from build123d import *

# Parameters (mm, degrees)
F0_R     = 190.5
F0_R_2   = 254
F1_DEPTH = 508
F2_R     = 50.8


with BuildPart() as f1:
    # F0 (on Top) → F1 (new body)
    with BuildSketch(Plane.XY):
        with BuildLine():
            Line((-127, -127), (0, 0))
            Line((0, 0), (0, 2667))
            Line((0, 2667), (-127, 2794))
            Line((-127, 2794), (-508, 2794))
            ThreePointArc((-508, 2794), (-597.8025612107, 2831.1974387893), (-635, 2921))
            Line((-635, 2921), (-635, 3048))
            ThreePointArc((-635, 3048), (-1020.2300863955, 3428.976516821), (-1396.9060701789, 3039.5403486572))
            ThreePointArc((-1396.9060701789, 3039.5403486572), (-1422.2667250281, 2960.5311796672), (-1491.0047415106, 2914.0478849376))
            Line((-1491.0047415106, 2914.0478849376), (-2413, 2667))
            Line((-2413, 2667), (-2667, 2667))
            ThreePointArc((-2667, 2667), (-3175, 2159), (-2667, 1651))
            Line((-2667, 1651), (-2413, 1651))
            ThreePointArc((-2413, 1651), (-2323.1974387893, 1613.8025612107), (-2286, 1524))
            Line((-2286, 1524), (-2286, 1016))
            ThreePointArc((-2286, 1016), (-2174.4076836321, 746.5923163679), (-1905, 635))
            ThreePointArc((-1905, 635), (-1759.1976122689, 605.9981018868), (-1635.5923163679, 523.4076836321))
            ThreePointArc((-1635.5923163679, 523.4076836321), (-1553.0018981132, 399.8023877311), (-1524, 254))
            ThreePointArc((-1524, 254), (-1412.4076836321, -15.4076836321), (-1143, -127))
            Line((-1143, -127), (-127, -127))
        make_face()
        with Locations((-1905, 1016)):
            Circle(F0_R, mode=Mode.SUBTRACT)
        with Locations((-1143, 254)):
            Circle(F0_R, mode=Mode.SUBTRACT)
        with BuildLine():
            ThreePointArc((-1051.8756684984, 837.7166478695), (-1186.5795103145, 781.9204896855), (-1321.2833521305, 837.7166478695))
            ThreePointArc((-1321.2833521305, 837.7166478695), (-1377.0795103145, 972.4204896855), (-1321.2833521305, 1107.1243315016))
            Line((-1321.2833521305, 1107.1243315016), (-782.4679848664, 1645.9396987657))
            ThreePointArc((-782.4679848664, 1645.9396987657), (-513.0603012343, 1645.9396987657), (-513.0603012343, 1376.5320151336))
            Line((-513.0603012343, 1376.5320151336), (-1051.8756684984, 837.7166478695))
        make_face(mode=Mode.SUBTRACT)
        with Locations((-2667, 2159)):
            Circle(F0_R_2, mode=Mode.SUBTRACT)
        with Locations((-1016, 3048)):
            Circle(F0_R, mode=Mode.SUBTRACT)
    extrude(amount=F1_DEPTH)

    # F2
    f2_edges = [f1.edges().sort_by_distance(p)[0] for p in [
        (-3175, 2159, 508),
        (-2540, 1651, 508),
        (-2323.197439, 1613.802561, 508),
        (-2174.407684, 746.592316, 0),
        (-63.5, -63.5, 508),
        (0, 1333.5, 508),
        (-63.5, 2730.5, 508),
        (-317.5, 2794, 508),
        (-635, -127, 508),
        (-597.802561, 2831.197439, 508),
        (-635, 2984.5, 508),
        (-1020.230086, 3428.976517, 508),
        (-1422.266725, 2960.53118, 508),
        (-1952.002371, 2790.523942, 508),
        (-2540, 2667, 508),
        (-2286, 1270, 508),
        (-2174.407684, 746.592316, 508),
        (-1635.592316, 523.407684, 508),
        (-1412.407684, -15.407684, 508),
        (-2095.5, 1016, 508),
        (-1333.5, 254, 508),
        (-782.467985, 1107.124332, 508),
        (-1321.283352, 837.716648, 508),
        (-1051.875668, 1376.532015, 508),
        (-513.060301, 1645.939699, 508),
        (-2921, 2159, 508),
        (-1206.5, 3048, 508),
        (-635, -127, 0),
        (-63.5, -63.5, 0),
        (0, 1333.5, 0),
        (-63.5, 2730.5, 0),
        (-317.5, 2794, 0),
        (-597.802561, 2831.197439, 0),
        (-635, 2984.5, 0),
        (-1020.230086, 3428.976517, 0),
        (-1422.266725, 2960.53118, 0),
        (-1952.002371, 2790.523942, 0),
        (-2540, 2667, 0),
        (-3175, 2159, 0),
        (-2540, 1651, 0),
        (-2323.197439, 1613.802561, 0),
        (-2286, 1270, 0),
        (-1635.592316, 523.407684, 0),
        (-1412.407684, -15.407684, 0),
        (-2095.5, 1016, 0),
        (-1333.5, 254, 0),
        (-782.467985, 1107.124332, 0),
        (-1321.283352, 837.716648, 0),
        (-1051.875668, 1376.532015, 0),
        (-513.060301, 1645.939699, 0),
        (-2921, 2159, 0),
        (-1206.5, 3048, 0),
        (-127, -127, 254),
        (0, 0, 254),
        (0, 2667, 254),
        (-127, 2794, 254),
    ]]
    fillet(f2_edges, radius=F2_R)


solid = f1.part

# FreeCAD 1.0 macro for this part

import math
import FreeCAD as App
import Part
import Sketcher
from FreeCAD import Vector
Q = App.Units.Quantity

doc = App.newDocument("Part")
body = doc.addObject("PartDesign::Body", "Body")

sketch1 = body.newObject("Sketcher::SketchObject", "Sketch")
sketch1.AttachmentSupport = (doc.getObject("XY_Plane"), [""])
sketch1.MapMode = "FlatFace"
sketch1.addGeometry([
    Part.LineSegment(Vector(-127, -127, 0), Vector(0, 0, 0)),
    Part.LineSegment(Vector(0, 0, 0), Vector(0, 2667, 0)),
    Part.LineSegment(Vector(0, 2667, 0), Vector(-127, 2794, 0)),
    Part.LineSegment(Vector(-127, 2794, 0), Vector(-508, 2794, 0)),
    Part.ArcOfCircle(Part.Circle(Vector(-508, 2921, 0), Vector(0, 0, 1), 127), math.radians(180), math.radians(270)),
    Part.LineSegment(Vector(-635, 2921, 0), Vector(-635, 3048, 0)),
    Part.ArcOfCircle(Part.Circle(Vector(-1016, 3048, 0), Vector(0, 0, 1), 381), math.radians(0), math.radians(181.272289)),
    Part.ArcOfCircle(Part.Circle(Vector(-1523.87476, 3036.720465, 0), Vector(0, 0, 1), 127), math.radians(-75), math.radians(1.272289)),
    Part.LineSegment(Vector(-1491.004742, 2914.047885, 0), Vector(-2413, 2667, 0)),
    Part.LineSegment(Vector(-2413, 2667, 0), Vector(-2667, 2667, 0)),
    Part.ArcOfCircle(Part.Circle(Vector(-2667, 2159, 0), Vector(0, 0, 1), 508), math.radians(90), math.radians(270)),
    Part.LineSegment(Vector(-2667, 1651, 0), Vector(-2413, 1651, 0)),
    Part.ArcOfCircle(Part.Circle(Vector(-2413, 1524, 0), Vector(0, 0, 1), 127), math.radians(0), math.radians(90)),
    Part.LineSegment(Vector(-2286, 1524, 0), Vector(-2286, 1016, 0)),
    Part.ArcOfCircle(Part.Circle(Vector(-1905, 1016, 0), Vector(0, 0, 1), 381), math.radians(180), math.radians(270)),
    Part.ArcOfCircle(Part.Circle(Vector(-1905, 254, 0), Vector(0, 0, 1), 381), math.radians(0), math.radians(90)),
    Part.ArcOfCircle(Part.Circle(Vector(-1143, 254, 0), Vector(0, 0, 1), 381), math.radians(180), math.radians(270)),
    Part.LineSegment(Vector(-1143, -127, 0), Vector(-127, -127, 0)),
    Part.Circle(Vector(-1905, 1016, 0), Vector(0, 0, 1), 190.5),
    Part.Circle(Vector(-1143, 254, 0), Vector(0, 0, 1), 190.5),
    Part.LineSegment(Vector(-513.060301, 1376.532015, 0), Vector(-1051.875668, 837.716648, 0)),
    Part.ArcOfCircle(Part.Circle(Vector(-1186.57951, 972.42049, 0), Vector(0, 0, 1), 190.5), math.radians(135), math.radians(315)),
    Part.LineSegment(Vector(-1321.283352, 1107.124332, 0), Vector(-782.467985, 1645.939699, 0)),
    Part.ArcOfCircle(Part.Circle(Vector(-647.764143, 1511.235857, 0), Vector(0, 0, 1), 190.5), math.radians(-45), math.radians(135)),
    Part.Circle(Vector(-2667, 2159, 0), Vector(0, 0, 1), 254),
    Part.Circle(Vector(-1016, 3048, 0), Vector(0, 0, 1), 190.5),
], False)
sketch1.addConstraint([
    Sketcher.Constraint("Coincident", 0, 2, 1, 1),
    Sketcher.Constraint("Coincident", 1, 2, 2, 1),
    Sketcher.Constraint("Coincident", 2, 2, 3, 1),
    Sketcher.Constraint("Tangent", 3, 2, 4, 2),
    Sketcher.Constraint("Tangent", 4, 1, 5, 1),
    Sketcher.Constraint("Tangent", 5, 2, 6, 1),
    Sketcher.Constraint("Tangent", 6, 2, 7, 2),
    Sketcher.Constraint("Tangent", 7, 1, 8, 1),
    Sketcher.Constraint("Coincident", 8, 2, 9, 1),
    Sketcher.Constraint("Tangent", 9, 2, 10, 1),
    Sketcher.Constraint("Tangent", 10, 2, 11, 1),
    Sketcher.Constraint("Tangent", 11, 2, 12, 2),
    Sketcher.Constraint("Tangent", 12, 1, 13, 1),
    Sketcher.Constraint("Tangent", 13, 2, 14, 1),
    Sketcher.Constraint("Tangent", 14, 2, 15, 2),
    Sketcher.Constraint("Tangent", 15, 1, 16, 1),
    Sketcher.Constraint("Tangent", 16, 2, 17, 1),
    Sketcher.Constraint("Coincident", 17, 2, 0, 1),
    Sketcher.Constraint("Tangent", 20, 2, 21, 2),
    Sketcher.Constraint("Tangent", 21, 1, 22, 1),
    Sketcher.Constraint("Tangent", 22, 2, 23, 2),
    Sketcher.Constraint("Tangent", 23, 1, 20, 1),
    Sketcher.Constraint("Vertical", 1),
    Sketcher.Constraint("Horizontal", 3),
    Sketcher.Constraint("Vertical", 5),
    Sketcher.Constraint("Horizontal", 9),
    Sketcher.Constraint("Horizontal", 11),
    Sketcher.Constraint("Vertical", 13),
    Sketcher.Constraint("Horizontal", 17),
    Sketcher.Constraint("Coincident", 0, 2, -1, 1),
    Sketcher.Constraint("Coincident", 18, 3, 14, 3),
    Sketcher.Constraint("Coincident", 19, 3, 16, 3),
    Sketcher.Constraint("Coincident", 24, 3, 10, 3),
    Sketcher.Constraint("Coincident", 25, 3, 6, 3),
    Sketcher.Constraint("Equal", 4, 7),
    Sketcher.Constraint("Equal", 7, 12),
    Sketcher.Constraint("Equal", 6, 14),
    Sketcher.Constraint("Equal", 14, 15),
    Sketcher.Constraint("Equal", 15, 16),
    Sketcher.Constraint("Equal", 18, 19),
    Sketcher.Constraint("Equal", 19, 21),
    Sketcher.Constraint("Equal", 21, 23),
    Sketcher.Constraint("Equal", 23, 25),
    Sketcher.Constraint("Perpendicular", 0, 2),
    Sketcher.Constraint("Perpendicular", 2, 20),
    Sketcher.Constraint("Horizontal", 15, 3, 16, 3),
    Sketcher.Constraint("Horizontal", 1, 2, 8, 2),
    Sketcher.Constraint("Vertical", 14, 3, 15, 3),
    Sketcher.Constraint("Vertical", 12, 3, 8, 2),
    Sketcher.Constraint("Vertical", 2, 2, 17, 2),
    Sketcher.Constraint("Equal", 0, 2),
    Sketcher.Constraint("Diameter", 18, Q("15 in")),
    Sketcher.Constraint("Diameter", 24, Q("20 in")),
    Sketcher.Constraint("Radius", 4, Q("5 in")),
    Sketcher.Constraint("Radius", 6, Q("15 in")),
    Sketcher.Constraint("Radius", 10, Q("20 in")),
    Sketcher.Constraint("DistanceX", 3, 2, 3, 1, Q("15 in")),
    Sketcher.Constraint("DistanceX", 9, 2, 9, 1, Q("10 in")),
    Sketcher.Constraint("DistanceX", 17, 1, 17, 2, Q("40 in")),
    Sketcher.Constraint("DistanceY", 1, 1, 1, 2, Q("105 in")),
    Sketcher.Constraint("DistanceY", 5, 1, 5, 2, Q("5 in")),
    Sketcher.Constraint("DistanceY", 13, 2, 13, 1, Q("20 in")),
    Sketcher.Constraint("Distance", 20, Q("30 in")),
    Sketcher.Constraint("Angle", 8, Q("-165 deg")),
    Sketcher.Constraint("DistanceY", -1, 1, 22, 2, Q("1645.939699 mm")),
    Sketcher.Constraint("DistanceX", 23, 1, -1, 1, Q("513.060301 mm")),
])
pad1 = body.newObject("PartDesign::Pad", "Pad")
pad1.Profile = sketch1
pad1.Length = Q("20 in")
doc.recompute()

fillet = body.newObject("PartDesign::Fillet", "Fillet")
fillet.Base = (pad1, ["Edge1"])
fillet.UseAllEdges = True
fillet.Radius = Q("2 in")

doc.recompute()
